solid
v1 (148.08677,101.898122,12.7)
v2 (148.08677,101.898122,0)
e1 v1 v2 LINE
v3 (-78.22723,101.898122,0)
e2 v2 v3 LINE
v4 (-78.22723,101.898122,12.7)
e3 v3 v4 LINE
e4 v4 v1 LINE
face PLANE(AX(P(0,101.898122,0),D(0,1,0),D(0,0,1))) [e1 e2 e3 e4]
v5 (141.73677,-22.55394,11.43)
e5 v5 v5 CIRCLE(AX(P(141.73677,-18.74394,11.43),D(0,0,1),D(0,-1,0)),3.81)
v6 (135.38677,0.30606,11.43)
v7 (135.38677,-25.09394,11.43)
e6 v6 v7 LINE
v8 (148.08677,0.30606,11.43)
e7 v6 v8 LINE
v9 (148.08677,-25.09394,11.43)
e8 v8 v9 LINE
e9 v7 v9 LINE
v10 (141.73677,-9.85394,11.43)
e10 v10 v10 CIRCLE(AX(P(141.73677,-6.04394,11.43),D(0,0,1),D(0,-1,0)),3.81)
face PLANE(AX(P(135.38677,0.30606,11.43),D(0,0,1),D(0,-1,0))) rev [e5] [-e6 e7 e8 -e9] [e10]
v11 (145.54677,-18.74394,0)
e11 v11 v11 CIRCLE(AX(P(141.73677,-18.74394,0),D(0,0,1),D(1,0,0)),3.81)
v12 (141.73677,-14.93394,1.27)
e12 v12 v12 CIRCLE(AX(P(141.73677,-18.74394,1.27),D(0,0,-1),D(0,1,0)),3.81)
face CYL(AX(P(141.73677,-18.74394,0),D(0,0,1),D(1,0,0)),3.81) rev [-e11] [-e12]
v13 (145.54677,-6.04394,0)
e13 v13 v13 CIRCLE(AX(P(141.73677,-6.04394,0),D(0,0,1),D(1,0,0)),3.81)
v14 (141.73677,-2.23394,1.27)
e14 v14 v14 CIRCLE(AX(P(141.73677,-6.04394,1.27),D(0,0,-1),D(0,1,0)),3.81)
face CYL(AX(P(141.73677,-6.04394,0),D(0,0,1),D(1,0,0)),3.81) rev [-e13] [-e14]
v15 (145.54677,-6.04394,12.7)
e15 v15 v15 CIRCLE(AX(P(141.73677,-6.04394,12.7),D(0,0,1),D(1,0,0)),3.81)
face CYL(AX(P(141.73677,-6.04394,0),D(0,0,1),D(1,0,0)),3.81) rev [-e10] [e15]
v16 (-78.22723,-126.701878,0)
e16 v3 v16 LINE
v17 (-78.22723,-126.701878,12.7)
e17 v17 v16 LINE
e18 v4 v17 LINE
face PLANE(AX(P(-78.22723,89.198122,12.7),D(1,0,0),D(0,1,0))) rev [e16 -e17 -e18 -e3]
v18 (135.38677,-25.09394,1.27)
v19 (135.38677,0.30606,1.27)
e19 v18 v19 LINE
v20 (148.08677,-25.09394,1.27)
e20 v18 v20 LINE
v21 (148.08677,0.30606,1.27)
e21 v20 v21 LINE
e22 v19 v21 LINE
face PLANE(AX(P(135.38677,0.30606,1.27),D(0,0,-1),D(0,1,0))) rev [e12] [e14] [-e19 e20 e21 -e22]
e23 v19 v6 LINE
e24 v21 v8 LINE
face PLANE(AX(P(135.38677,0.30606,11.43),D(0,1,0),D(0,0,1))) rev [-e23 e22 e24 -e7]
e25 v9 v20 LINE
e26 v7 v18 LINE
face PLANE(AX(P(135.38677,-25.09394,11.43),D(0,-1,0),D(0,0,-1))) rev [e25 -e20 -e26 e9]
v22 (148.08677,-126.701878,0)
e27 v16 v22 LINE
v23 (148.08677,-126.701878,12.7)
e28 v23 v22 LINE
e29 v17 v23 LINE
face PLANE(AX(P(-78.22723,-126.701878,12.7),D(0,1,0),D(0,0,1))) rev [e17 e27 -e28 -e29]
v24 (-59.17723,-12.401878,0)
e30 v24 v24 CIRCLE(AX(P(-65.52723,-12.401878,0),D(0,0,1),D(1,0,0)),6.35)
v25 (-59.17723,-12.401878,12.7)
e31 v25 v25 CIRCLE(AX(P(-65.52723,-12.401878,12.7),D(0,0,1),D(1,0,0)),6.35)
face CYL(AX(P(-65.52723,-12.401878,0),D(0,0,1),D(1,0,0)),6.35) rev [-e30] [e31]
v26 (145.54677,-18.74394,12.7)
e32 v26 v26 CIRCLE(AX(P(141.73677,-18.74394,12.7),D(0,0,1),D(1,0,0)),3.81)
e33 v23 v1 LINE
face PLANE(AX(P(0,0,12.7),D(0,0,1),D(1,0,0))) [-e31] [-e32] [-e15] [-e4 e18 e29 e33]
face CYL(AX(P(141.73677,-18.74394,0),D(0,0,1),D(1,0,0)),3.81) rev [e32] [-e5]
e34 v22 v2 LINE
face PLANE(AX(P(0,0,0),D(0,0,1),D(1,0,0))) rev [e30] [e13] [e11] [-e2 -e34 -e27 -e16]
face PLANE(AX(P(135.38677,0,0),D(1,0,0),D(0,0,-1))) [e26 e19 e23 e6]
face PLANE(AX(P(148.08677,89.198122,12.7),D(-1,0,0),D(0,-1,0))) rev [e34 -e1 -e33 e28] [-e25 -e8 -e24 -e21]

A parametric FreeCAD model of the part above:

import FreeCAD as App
import Part
import Sketcher
from FreeCAD import Vector
Q = App.Units.Quantity


def add_polygon(sketch, points):
    """Adds a closed chain of lines whose ends are joined by coincident constraints."""
    first, n = sketch.GeometryCount, len(points)
    for a, b in zip(points, points[1:] + points[:1]):
        sketch.addGeometry(Part.LineSegment(App.Vector(*a, 0), App.Vector(*b, 0)), False)
    for i in range(n):
        sketch.addConstraint(Sketcher.Constraint("Coincident", first + i, 2, first + (i + 1) % n, 1))

doc = App.newDocument("Part")
body = doc.addObject("PartDesign::Body", "Body")

# Sketch on XY plane
sketch1 = doc.addObject("Sketcher::SketchObject", "Sketch")
body.addObject(sketch1)
sketch1.AttachmentSupport = (doc.XY_Plane, [""])
sketch1.MapMode = "FlatFace"
add_polygon(sketch1, [(-78.22723, 89.198122), (-78.22723, -126.701878), (148.08677, -126.701878), (148.08677, 89.198122)])  # lines 0-3
sketch1.addConstraint(Sketcher.Constraint("Vertical", 0))
sketch1.addConstraint(Sketcher.Constraint("Horizontal", 1))
sketch1.addConstraint(Sketcher.Constraint("Vertical", 2))
sketch1.addConstraint(Sketcher.Constraint("Horizontal", 3))
sketch1.addConstraint(Sketcher.Constraint("DistanceY", 0, 2, 0, 1, Q("8.5 in")))
sketch1.addConstraint(Sketcher.Constraint("DistanceX", 1, 1, 1, 2, Q("8.91 in")))
sketch1.addConstraint(Sketcher.Constraint("DistanceX", 0, 2, -1, 1, Q("78.22723 mm")))
sketch1.addConstraint(Sketcher.Constraint("DistanceY", 0, 2, -1, 1, Q("126.701878 mm")))
pad1 = doc.addObject("PartDesign::Pad", "Pad")
body.addObject(pad1)
pad1.Profile = sketch1
pad1.Length = Q("0.5 in")

# Sketch on YZ plane
sketch2 = doc.addObject("Sketcher::SketchObject", "Sketch001")
body.addObject(sketch2)
sketch2.AttachmentSupport = (doc.YZ_Plane, [""])
sketch2.MapMode = "FlatFace"
sketch2.AttachmentOffset = App.Placement(Vector(0, 0, 148.08677), App.Rotation())
add_polygon(sketch2, [(0.30606, 11.43), (-25.09394, 11.43), (-25.09394, 1.27), (0.30606, 1.27)])  # lines 0-3
sketch2.addConstraint(Sketcher.Constraint("Horizontal", 0))
sketch2.addConstraint(Sketcher.Constraint("Vertical", 1))
sketch2.addConstraint(Sketcher.Constraint("Horizontal", 2))
sketch2.addConstraint(Sketcher.Constraint("Vertical", 3))
sketch2.addConstraint(Sketcher.Constraint("DistanceX", 0, 2, 0, 1, Q("1 in")))
sketch2.addConstraint(Sketcher.Constraint("DistanceY", 1, 2, 1, 1, Q("0.4 in")))
sketch2.addConstraint(Sketcher.Constraint("DistanceY", -1, 1, 0, 2, Q("0.45 in")))
sketch2.addConstraint(Sketcher.Constraint("DistanceX", 0, 2, -1, 1, Q("25.09394 mm")))
pocket1 = doc.addObject("PartDesign::Pocket", "Pocket")
body.addObject(pocket1)
pocket1.Profile = sketch2
pocket1.Length = Q("0.5 in")

# Sketch on XY plane
sketch3 = doc.addObject("Sketcher::SketchObject", "Sketch002")
body.addObject(sketch3)
sketch3.AttachmentSupport = (doc.XY_Plane, [""])
sketch3.MapMode = "FlatFace"
sketch3.AttachmentOffset = App.Placement(Vector(0, 0, 0.5 * 25.4), App.Rotation())
sketch3.addGeometry(Part.Circle(Vector(-65.52723, -12.401878, 0), Vector(0, 0, 1), 6.35), False)
sketch3.addGeometry(Part.Circle(Vector(141.73677, -6.04394, 0), Vector(0, 0, 1), 3.81), False)
sketch3.addGeometry(Part.Circle(Vector(141.73677, -18.74394, 0), Vector(0, 0, 1), 3.81), False)
sketch3.addConstraint(Sketcher.Constraint("Equal", 1, 2))
sketch3.addConstraint(Sketcher.Constraint("Vertical", 1, 3, 2, 3))
sketch3.addConstraint(Sketcher.Constraint("Diameter", 0, Q("0.5 in")))
sketch3.addConstraint(Sketcher.Constraint("Diameter", 1, Q("0.3 in")))
sketch3.addConstraint(Sketcher.Constraint("DistanceY", 2, 3, 1, 3, Q("0.5 in")))
sketch3.addConstraint(Sketcher.Constraint("DistanceX", 0, 3, 1, 3, Q("8.16 in")))
sketch3.addConstraint(Sketcher.Constraint("DistanceX", 0, 3, -1, 1, Q("65.52723 mm")))
sketch3.addConstraint(Sketcher.Constraint("DistanceY", 1, 3, -1, 1, Q("6.04394 mm")))
sketch3.addConstraint(Sketcher.Constraint("DistanceY", 0, 3, -1, 1, Q("12.401878 mm")))
pocket2 = doc.addObject("PartDesign::Pocket", "Pocket001")
body.addObject(pocket2)
pocket2.Profile = sketch3
pocket2.Length = Q("0.5 in")

# Sketch on XZ plane
sketch4 = doc.addObject("Sketcher::SketchObject", "Sketch003")
body.addObject(sketch4)
sketch4.AttachmentSupport = (doc.XZ_Plane, [""])
sketch4.MapMode = "FlatFace"
sketch4.AttachmentOffset = App.Placement(Vector(0, 0, -89.198122), App.Rotation())
add_polygon(sketch4, [(-78.22723, 0), (-78.22723, 12.7), (148.08677, 12.7), (148.08677, 0)])  # lines 0-3
sketch4.addConstraint(Sketcher.Constraint("Vertical", 0))
sketch4.addConstraint(Sketcher.Constraint("Horizontal", 1))
sketch4.addConstraint(Sketcher.Constraint("Vertical", 2))
sketch4.addConstraint(Sketcher.Constraint("Horizontal", 3))
sketch4.addConstraint(Sketcher.Constraint("PointOnObject", 2, 2, -1))
sketch4.addConstraint(Sketcher.Constraint("DistanceY", 0, 1, 0, 2, Q("0.5 in")))
sketch4.addConstraint(Sketcher.Constraint("DistanceX", 1, 1, 1, 2, Q("8.91 in")))
sketch4.addConstraint(Sketcher.Constraint("DistanceX", 0, 2, -1, 1, Q("78.22723 mm")))
pad2 = doc.addObject("PartDesign::Pad", "Pad001")
body.addObject(pad2)
pad2.Profile = sketch4
pad2.Length = Q("0.5 in")
pad2.Reversed = True

doc.recompute()
